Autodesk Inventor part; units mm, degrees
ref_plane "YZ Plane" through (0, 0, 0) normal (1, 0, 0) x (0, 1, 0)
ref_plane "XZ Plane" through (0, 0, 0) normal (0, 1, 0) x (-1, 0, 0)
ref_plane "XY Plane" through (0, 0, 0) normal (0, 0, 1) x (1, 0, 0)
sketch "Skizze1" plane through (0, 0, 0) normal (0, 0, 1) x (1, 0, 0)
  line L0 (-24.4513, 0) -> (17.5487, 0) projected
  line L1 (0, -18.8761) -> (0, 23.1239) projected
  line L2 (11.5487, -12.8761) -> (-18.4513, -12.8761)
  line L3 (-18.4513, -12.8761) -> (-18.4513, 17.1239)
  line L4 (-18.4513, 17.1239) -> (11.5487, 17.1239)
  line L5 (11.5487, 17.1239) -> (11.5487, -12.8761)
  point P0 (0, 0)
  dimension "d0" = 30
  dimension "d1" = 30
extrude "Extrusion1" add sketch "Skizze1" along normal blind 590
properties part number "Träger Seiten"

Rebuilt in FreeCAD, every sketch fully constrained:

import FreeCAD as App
import Part
import Sketcher

doc = App.newDocument("Part")
body = doc.addObject("PartDesign::Body", "Body")

# Sketch on XY plane
sketch1 = body.newObject("Sketcher::SketchObject", "Sketch")
sketch1.AttachmentSupport = (doc.getObject("XY_Plane"), [""])
sketch1.MapMode = "FlatFace"
sketch1.addGeometry(Part.LineSegment(App.Vector(-18, 17, 0), App.Vector(-18, -13, 0)), False)
sketch1.addGeometry(Part.LineSegment(App.Vector(-18, -13, 0), App.Vector(12, -13, 0)), False)
sketch1.addGeometry(Part.LineSegment(App.Vector(12, -13, 0), App.Vector(12, 17, 0)), False)
sketch1.addGeometry(Part.LineSegment(App.Vector(12, 17, 0), App.Vector(-18, 17, 0)), False)
sketch1.addConstraint(Sketcher.Constraint("Coincident", 0, 2, 1, 1))
sketch1.addConstraint(Sketcher.Constraint("Coincident", 1, 2, 2, 1))
sketch1.addConstraint(Sketcher.Constraint("Coincident", 2, 2, 3, 1))
sketch1.addConstraint(Sketcher.Constraint("Coincident", 3, 2, 0, 1))
sketch1.addConstraint(Sketcher.Constraint("Vertical", 0))
sketch1.addConstraint(Sketcher.Constraint("Horizontal", 1))
sketch1.addConstraint(Sketcher.Constraint("Vertical", 2))
sketch1.addConstraint(Sketcher.Constraint("Horizontal", 3))
sketch1.addConstraint(Sketcher.Constraint("Equal", 3, 0))
sketch1.addConstraint(Sketcher.Constraint("DistanceX", 1, 1, 1, 2, 30.0))
sketch1.addConstraint(Sketcher.Constraint("DistanceY", 0, 2, -1, 1, 12.876))
sketch1.addConstraint(Sketcher.Constraint("DistanceX", 0, 2, -1, 1, 18.4513))
pad1 = body.newObject("PartDesign::Pad", "Pad")
pad1.Profile = sketch1
pad1.Length = 590

doc.recompute()
